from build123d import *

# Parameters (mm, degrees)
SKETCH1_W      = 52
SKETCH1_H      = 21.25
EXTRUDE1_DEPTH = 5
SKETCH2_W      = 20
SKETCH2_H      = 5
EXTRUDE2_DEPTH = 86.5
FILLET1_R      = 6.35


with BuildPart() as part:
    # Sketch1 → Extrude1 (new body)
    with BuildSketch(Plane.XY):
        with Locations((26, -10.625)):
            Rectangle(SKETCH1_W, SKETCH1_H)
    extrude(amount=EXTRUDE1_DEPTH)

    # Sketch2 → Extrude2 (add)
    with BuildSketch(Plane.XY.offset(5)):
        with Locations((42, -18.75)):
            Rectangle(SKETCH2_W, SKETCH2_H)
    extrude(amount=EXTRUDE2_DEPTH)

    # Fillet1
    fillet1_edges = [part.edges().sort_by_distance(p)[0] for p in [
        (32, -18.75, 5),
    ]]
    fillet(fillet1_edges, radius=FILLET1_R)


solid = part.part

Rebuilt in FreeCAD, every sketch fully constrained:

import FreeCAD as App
import Part
import Sketcher
Q = App.Units.Quantity


def edges_at(feature, points):
    """Names of the edges that pass closest to the given points."""
    edges = feature.Shape.Edges
    near = lambda p: min(range(len(edges)), key=lambda i: edges[i].distToShape(Part.Vertex(*p))[0])
    return sorted({f"Edge{near(p) + 1}" for p in points})


def add_polygon(sketch, points):
    """Adds a closed chain of lines whose ends are joined by coincident constraints."""
    first, n = sketch.GeometryCount, len(points)
    for a, b in zip(points, points[1:] + points[:1]):
        sketch.addGeometry(Part.LineSegment(App.Vector(*a, 0), App.Vector(*b, 0)), False)
    for i in range(n):
        sketch.addConstraint(Sketcher.Constraint("Coincident", first + i, 2, first + (i + 1) % n, 1))

doc = App.newDocument("Part")
body = doc.addObject("PartDesign::Body", "Body")

sketch1 = body.newObject("Sketcher::SketchObject", "Sketch")
sketch1.AttachmentSupport = (doc.getObject("XY_Plane"), [""])
sketch1.MapMode = "FlatFace"
add_polygon(sketch1, [(0, 0), (0, -21), (52, -21), (52, 0)])
sketch1.addConstraint([
    Sketcher.Constraint("Vertical", 0),
    Sketcher.Constraint("Horizontal", 1),
    Sketcher.Constraint("Vertical", 2),
    Sketcher.Constraint("Horizontal", 3),
    Sketcher.Constraint("Coincident", 3, 2, -1, 1),
    Sketcher.Constraint("DistanceX", 1, 1, 1, 2, Q("52 mm")),
    Sketcher.Constraint("DistanceY", 0, 2, 0, 1, Q("21.25 mm")),
])
pad1 = body.newObject("PartDesign::Pad", "Pad")
pad1.Profile = sketch1
pad1.Length = 5

sketch2 = body.newObject("Sketcher::SketchObject", "Sketch001")
sketch2.AttachmentSupport = (doc.getObject("XY_Plane"), [""])
sketch2.MapMode = "FlatFace"
sketch2.AttachmentOffset = App.Placement(App.Vector(0, 0, 5), App.Rotation())
add_polygon(sketch2, [(32, -16), (32, -21), (52, -21), (52, -16)])
sketch2.addConstraint([
    Sketcher.Constraint("Vertical", 0),
    Sketcher.Constraint("Horizontal", 1),
    Sketcher.Constraint("Vertical", 2),
    Sketcher.Constraint("Horizontal", 3),
    Sketcher.Constraint("DistanceX", 1, 1, 1, 2, Q("20 mm")),
    Sketcher.Constraint("DistanceY", 0, 2, 0, 1, Q("5 mm")),
    Sketcher.Constraint("DistanceX", -1, 1, 0, 2, Q("32 mm")),
    Sketcher.Constraint("DistanceY", 0, 2, -1, 1, Q("21.25 mm")),
])
pad2 = body.newObject("PartDesign::Pad", "Pad001")
pad2.Profile = sketch2
pad2.Length = 86.5
doc.recompute()

fillet = body.newObject("PartDesign::Fillet", "Fillet")
fillet.Base = (pad2, edges_at(pad2, [(32, -18.75, 5)]))
fillet.Radius = 6.35

doc.recompute()
